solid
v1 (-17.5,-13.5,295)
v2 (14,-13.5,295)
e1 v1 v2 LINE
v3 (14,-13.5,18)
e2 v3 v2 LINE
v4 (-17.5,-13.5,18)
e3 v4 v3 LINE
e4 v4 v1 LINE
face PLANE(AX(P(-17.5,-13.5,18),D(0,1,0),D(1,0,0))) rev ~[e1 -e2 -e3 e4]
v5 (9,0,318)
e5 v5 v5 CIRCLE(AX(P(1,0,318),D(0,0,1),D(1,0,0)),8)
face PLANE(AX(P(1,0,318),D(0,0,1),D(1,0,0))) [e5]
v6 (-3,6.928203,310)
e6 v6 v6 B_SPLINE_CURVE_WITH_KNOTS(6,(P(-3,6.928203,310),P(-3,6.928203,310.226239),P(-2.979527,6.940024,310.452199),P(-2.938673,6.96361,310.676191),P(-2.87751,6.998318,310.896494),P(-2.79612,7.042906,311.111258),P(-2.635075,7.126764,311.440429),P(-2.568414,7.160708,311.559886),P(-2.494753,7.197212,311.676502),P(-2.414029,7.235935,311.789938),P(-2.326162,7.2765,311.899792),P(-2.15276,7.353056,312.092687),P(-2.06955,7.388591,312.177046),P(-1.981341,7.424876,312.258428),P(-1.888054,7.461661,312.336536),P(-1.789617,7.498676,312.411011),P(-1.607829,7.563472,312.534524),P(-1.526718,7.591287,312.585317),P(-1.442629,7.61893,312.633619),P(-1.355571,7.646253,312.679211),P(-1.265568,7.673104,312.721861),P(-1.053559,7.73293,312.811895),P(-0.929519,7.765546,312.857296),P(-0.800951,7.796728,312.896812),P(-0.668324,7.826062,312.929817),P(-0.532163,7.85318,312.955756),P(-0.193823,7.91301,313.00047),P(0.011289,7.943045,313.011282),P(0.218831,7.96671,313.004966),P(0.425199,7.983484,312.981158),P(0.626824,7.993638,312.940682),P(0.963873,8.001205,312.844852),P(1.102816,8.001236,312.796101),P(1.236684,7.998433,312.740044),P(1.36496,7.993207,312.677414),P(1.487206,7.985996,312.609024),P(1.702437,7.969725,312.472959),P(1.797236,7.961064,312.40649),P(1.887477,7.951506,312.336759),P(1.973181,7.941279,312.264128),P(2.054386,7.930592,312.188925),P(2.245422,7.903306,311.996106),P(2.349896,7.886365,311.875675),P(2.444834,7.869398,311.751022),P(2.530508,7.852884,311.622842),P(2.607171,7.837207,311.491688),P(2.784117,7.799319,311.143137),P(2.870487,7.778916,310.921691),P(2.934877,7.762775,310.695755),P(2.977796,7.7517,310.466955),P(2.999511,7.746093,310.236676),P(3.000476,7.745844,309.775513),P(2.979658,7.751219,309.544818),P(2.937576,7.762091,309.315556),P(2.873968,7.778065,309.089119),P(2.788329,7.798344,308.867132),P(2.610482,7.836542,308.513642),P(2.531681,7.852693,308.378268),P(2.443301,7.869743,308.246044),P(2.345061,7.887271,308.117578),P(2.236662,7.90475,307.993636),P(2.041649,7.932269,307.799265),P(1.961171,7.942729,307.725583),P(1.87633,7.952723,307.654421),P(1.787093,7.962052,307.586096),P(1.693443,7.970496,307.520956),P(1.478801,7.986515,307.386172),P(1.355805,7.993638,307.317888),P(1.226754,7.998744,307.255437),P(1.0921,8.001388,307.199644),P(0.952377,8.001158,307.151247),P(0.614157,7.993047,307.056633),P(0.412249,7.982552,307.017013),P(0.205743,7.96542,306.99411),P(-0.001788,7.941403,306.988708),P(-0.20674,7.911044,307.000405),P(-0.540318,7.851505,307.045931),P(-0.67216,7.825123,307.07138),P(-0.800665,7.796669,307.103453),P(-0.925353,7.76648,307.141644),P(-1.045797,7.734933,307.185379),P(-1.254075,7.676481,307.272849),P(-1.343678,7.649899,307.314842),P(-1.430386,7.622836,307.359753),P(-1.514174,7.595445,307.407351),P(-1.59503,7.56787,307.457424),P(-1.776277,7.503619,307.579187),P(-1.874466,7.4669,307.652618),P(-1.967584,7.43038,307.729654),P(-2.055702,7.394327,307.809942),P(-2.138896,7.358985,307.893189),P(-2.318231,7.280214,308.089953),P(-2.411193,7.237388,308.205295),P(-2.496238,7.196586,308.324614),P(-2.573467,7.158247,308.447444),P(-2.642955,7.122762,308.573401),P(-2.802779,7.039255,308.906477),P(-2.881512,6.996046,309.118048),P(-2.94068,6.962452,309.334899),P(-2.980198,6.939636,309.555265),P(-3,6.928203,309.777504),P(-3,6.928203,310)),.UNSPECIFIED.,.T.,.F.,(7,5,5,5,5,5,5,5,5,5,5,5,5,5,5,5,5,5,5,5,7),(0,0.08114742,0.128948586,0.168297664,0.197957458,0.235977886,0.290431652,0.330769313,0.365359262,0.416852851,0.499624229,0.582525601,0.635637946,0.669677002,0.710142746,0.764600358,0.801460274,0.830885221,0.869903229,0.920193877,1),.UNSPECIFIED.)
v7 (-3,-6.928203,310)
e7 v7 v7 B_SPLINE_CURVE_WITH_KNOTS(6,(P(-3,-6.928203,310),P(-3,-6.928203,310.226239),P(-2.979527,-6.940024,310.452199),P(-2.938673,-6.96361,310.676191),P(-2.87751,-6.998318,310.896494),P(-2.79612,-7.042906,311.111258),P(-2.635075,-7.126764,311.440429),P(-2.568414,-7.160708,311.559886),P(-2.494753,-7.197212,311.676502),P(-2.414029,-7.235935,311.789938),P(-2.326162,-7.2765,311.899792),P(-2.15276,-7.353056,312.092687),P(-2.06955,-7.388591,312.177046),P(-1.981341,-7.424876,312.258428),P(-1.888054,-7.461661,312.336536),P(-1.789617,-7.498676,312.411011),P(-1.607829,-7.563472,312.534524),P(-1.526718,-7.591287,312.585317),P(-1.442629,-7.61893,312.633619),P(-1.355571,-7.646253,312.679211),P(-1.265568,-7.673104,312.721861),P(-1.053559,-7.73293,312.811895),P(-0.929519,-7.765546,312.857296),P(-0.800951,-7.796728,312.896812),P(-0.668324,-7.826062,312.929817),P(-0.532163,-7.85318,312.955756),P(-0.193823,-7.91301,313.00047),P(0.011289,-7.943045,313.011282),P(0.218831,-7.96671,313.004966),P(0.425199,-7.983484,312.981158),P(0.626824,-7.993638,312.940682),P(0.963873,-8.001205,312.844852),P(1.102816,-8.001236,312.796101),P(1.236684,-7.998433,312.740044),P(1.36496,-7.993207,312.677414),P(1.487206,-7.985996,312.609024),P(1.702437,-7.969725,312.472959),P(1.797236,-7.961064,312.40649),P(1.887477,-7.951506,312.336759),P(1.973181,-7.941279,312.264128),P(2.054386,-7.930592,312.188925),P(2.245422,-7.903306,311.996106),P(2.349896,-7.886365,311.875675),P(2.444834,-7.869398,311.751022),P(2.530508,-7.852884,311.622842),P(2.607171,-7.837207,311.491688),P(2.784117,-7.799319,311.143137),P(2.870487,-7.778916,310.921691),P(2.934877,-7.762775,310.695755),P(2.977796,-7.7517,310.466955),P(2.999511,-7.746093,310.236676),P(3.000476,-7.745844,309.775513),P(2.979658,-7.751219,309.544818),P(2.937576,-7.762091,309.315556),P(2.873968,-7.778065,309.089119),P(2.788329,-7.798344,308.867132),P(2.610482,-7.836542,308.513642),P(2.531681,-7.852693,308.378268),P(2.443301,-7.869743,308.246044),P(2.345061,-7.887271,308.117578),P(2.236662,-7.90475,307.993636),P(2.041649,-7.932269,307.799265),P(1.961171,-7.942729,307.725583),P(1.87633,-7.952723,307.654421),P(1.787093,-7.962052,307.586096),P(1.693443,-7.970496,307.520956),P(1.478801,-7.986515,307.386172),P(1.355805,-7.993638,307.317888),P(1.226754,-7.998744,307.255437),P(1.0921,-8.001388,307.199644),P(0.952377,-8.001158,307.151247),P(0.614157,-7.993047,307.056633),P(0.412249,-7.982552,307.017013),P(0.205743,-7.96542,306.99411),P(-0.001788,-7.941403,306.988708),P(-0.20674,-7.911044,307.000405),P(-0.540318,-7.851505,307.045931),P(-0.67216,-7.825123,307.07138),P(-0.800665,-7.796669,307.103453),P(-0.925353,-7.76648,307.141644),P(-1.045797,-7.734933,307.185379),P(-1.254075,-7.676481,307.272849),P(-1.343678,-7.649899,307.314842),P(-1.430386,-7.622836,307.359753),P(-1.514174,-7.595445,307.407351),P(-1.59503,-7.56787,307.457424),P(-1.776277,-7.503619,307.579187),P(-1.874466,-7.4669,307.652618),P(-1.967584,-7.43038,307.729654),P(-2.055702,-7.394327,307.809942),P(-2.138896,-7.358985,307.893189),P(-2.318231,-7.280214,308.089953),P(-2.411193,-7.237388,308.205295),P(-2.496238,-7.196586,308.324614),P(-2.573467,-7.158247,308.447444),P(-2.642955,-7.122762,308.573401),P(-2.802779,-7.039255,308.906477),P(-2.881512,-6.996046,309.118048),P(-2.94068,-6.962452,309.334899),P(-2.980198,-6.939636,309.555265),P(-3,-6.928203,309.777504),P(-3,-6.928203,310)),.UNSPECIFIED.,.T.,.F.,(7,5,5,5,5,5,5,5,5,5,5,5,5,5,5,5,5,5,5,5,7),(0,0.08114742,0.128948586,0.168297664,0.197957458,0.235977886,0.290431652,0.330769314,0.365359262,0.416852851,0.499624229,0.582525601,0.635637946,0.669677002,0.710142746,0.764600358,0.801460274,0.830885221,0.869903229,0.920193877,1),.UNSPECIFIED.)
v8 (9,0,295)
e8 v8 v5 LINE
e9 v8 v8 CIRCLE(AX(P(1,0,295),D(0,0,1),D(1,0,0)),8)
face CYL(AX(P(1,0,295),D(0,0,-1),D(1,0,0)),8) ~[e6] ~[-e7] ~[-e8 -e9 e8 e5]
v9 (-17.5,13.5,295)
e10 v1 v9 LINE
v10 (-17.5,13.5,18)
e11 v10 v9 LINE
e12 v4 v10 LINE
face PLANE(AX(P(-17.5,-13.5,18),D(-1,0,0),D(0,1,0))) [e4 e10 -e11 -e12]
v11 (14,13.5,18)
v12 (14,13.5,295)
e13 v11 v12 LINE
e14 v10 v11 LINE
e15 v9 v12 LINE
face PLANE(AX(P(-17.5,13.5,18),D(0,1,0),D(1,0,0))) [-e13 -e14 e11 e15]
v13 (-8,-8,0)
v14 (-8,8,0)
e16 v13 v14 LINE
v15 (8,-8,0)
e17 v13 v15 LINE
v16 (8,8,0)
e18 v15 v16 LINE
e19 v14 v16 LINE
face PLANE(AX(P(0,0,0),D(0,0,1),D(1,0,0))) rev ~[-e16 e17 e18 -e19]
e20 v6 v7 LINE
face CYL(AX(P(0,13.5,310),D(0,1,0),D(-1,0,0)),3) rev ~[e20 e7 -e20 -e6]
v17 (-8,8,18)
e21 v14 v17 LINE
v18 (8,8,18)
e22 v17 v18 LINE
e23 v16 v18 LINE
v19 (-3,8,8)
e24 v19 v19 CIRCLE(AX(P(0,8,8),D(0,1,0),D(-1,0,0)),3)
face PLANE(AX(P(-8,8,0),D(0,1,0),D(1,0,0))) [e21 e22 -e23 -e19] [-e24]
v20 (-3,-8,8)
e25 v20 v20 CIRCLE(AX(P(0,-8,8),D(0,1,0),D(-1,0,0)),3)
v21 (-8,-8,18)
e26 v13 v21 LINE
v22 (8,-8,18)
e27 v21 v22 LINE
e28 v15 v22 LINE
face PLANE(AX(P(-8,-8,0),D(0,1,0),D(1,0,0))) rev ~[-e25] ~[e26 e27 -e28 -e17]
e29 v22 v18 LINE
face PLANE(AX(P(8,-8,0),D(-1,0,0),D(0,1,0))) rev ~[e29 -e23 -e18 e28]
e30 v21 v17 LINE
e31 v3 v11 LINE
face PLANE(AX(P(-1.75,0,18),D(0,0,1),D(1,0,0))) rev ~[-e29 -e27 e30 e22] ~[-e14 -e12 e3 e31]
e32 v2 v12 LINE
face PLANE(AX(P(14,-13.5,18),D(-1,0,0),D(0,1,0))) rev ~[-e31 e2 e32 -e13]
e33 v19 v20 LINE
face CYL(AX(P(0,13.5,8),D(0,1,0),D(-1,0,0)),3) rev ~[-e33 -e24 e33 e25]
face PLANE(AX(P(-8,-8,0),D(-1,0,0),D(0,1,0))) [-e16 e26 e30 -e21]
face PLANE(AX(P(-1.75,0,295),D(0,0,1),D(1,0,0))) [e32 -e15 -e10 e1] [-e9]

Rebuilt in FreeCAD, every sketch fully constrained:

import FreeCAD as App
import Part
import Sketcher


def add_polygon(sketch, points):
    """Adds a closed chain of lines whose ends are joined by coincident constraints."""
    first, n = sketch.GeometryCount, len(points)
    for a, b in zip(points, points[1:] + points[:1]):
        sketch.addGeometry(Part.LineSegment(App.Vector(*a, 0), App.Vector(*b, 0)), False)
    for i in range(n):
        sketch.addConstraint(Sketcher.Constraint("Coincident", first + i, 2, first + (i + 1) % n, 1))

doc = App.newDocument("Part")
body = doc.addObject("PartDesign::Body", "Body")

# Sketch on XY plane
sketch1 = body.newObject("Sketcher::SketchObject", "Sketch")
sketch1.AttachmentSupport = (doc.getObject("XY_Plane"), [""])
sketch1.MapMode = "FlatFace"
add_polygon(sketch1, [(-8, 8), (-8, -8), (8, -8), (8, 8)])  # lines 0-3
sketch1.addConstraint([
    Sketcher.Constraint("Vertical", 0),
    Sketcher.Constraint("Horizontal", 1),
    Sketcher.Constraint("Vertical", 2),
    Sketcher.Constraint("Horizontal", 3),
    Sketcher.Constraint("Symmetric", 0, 2, 2, 2, -1, 1),
    Sketcher.Constraint("Equal", 3, 0),
    Sketcher.Constraint("DistanceX", 1, 1, 1, 2, 16.0),
])
pad1 = body.newObject("PartDesign::Pad", "Pad")
pad1.Profile = sketch1
pad1.Length = 18

# Sketch on XY plane
sketch2 = body.newObject("Sketcher::SketchObject", "Sketch001")
sketch2.AttachmentSupport = (doc.getObject("XY_Plane"), [""])
sketch2.MapMode = "FlatFace"
sketch2.AttachmentOffset = App.Placement(App.Vector(0, 0, 18), App.Rotation())
add_polygon(sketch2, [(-18, 14), (-18, -14), (14, -14), (14, 14)])  # lines 0-3
sketch2.addConstraint([
    Sketcher.Constraint("Vertical", 0),
    Sketcher.Constraint("Horizontal", 1),
    Sketcher.Constraint("Vertical", 2),
    Sketcher.Constraint("Horizontal", 3),
    Sketcher.Constraint("DistanceY", 0, 2, 0, 1, 27.0),
    Sketcher.Constraint("DistanceX", 1, 1, 1, 2, 31.5),
    Sketcher.Constraint("DistanceX", -1, 1, 1, 2, 14.0),
    Sketcher.Constraint("DistanceY", 0, 2, -1, 1, 13.5),
])
pad2 = body.newObject("PartDesign::Pad", "Pad001")
pad2.Profile = sketch2
pad2.Length = 277

# Sketch on XY plane
sketch3 = body.newObject("Sketcher::SketchObject", "Sketch002")
sketch3.AttachmentSupport = (doc.getObject("XY_Plane"), [""])
sketch3.MapMode = "FlatFace"
sketch3.AttachmentOffset = App.Placement(App.Vector(0, 0, 295), App.Rotation())
sketch3.addGeometry(Part.Circle(App.Vector(1, 0, 0), App.Vector(0, 0, 1), 8), False)
sketch3.addConstraint([
    Sketcher.Constraint("PointOnObject", 0, 3, -1),
    Sketcher.Constraint("Diameter", 0, 16.0),
    Sketcher.Constraint("DistanceX", -1, 1, 0, 3, 1.0),
])
pad3 = body.newObject("PartDesign::Pad", "Pad002")
pad3.Profile = sketch3
pad3.Length = 23

# Sketch on XZ plane
sketch4 = body.newObject("Sketcher::SketchObject", "Sketch003")
sketch4.AttachmentSupport = (doc.getObject("XZ_Plane"), [""])
sketch4.MapMode = "FlatFace"
sketch4.AttachmentOffset = App.Placement(App.Vector(0, 0, -13.5), App.Rotation())
sketch4.addGeometry([
    Part.Circle(App.Vector(0, 8, 0), App.Vector(0, 0, 1), 3),
    Part.Circle(App.Vector(0, 310, 0), App.Vector(0, 0, 1), 3),
], False)
sketch4.addConstraint([
    Sketcher.Constraint("Equal", 0, 1),
    Sketcher.Constraint("PointOnObject", 0, 3, -2),
    Sketcher.Constraint("PointOnObject", 1, 3, -2),
    Sketcher.Constraint("Diameter", 0, 6.0),
    Sketcher.Constraint("DistanceY", -1, 1, 0, 3, 8.0),
    Sketcher.Constraint("DistanceY", -1, 1, 1, 3, 310.0),
])
pocket1 = body.newObject("PartDesign::Pocket", "Pocket")
pocket1.Profile = sketch4
pocket1.Length = 25
pocket1.Reversed = True

doc.recompute()
